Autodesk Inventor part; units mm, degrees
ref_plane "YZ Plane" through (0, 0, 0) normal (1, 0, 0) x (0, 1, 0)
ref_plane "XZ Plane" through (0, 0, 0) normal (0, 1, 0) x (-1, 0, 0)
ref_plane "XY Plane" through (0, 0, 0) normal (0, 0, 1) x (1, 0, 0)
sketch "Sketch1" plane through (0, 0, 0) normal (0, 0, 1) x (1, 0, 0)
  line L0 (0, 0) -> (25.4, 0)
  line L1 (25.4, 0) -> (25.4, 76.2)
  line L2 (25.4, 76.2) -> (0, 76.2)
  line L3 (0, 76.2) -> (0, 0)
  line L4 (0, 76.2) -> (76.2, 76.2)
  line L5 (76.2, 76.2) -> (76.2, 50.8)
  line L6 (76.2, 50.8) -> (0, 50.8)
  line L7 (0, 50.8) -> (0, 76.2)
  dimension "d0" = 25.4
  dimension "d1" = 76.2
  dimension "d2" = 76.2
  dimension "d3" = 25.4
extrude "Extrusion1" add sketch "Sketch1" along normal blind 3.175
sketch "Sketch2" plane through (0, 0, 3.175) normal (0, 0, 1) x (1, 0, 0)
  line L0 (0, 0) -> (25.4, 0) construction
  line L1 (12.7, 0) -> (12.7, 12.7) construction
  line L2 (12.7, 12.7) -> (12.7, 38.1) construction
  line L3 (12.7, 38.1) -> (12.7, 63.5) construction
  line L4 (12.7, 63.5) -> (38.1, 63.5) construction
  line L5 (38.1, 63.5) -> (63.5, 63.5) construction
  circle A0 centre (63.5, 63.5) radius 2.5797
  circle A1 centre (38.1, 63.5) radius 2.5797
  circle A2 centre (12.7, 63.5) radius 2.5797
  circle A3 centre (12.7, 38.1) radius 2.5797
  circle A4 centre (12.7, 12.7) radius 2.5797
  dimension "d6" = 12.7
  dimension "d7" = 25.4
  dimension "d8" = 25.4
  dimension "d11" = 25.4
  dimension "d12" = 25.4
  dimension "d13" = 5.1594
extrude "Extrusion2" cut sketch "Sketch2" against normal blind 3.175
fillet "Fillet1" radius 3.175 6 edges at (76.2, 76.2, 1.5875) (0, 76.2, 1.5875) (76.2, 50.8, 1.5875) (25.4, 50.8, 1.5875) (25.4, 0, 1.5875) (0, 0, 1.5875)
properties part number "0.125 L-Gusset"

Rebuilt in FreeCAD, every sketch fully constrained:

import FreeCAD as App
import Part
import Sketcher
Q = App.Units.Quantity


def edges_at(feature, points):
    """Names of the edges that pass closest to the given points."""
    edges = feature.Shape.Edges
    near = lambda p: min(range(len(edges)), key=lambda i: edges[i].distToShape(Part.Vertex(*p))[0])
    return sorted({f"Edge{near(p) + 1}" for p in points})


def add_polygon(sketch, points):
    """Adds a closed chain of lines whose ends are joined by coincident constraints."""
    first, n = sketch.GeometryCount, len(points)
    for a, b in zip(points, points[1:] + points[:1]):
        sketch.addGeometry(Part.LineSegment(App.Vector(*a, 0), App.Vector(*b, 0)), False)
    for i in range(n):
        sketch.addConstraint(Sketcher.Constraint("Coincident", first + i, 2, first + (i + 1) % n, 1))

doc = App.newDocument("Part")
body = doc.addObject("PartDesign::Body", "Body")

sketch1 = doc.addObject("Sketcher::SketchObject", "Sketch")
body.addObject(sketch1)
sketch1.AttachmentSupport = (doc.XY_Plane, [""])
sketch1.MapMode = "FlatFace"
add_polygon(sketch1, [(0, 0), (25, 0), (25, 51), (76, 51), (76, 76), (0, 76)])
sketch1.addConstraint([
    Sketcher.Constraint("Horizontal", 0),
    Sketcher.Constraint("Vertical", 1),
    Sketcher.Constraint("Horizontal", 2),
    Sketcher.Constraint("Vertical", 3),
    Sketcher.Constraint("Horizontal", 4),
    Sketcher.Constraint("Vertical", 5),
    Sketcher.Constraint("Coincident", 5, 2, -1, 1),
    Sketcher.Constraint("Equal", 2, 1),
    Sketcher.Constraint("Equal", 0, 3),
    Sketcher.Constraint("DistanceX", 0, 1, 0, 2, Q("1 in")),
    Sketcher.Constraint("DistanceX", 4, 2, 4, 1, Q("3 in")),
])
pad1 = doc.addObject("PartDesign::Pad", "Pad")
body.addObject(pad1)
pad1.Profile = sketch1
pad1.Length = Q("0.125 in")

sketch2 = doc.addObject("Sketcher::SketchObject", "Sketch001")
body.addObject(sketch2)
sketch2.AttachmentSupport = (doc.XY_Plane, [""])
sketch2.MapMode = "FlatFace"
sketch2.AttachmentOffset = App.Placement(App.Vector(0, 0, 0.125 * 25.4), App.Rotation())
sketch2.addGeometry([
    Part.Circle(App.Vector(63.5, 63.5, 0), App.Vector(0, 0, 1), 2.6),
    Part.Circle(App.Vector(38.1, 63.5, 0), App.Vector(0, 0, 1), 2.6),
    Part.Circle(App.Vector(12.7, 63.5, 0), App.Vector(0, 0, 1), 2.6),
    Part.Circle(App.Vector(12.7, 38.1, 0), App.Vector(0, 0, 1), 2.6),
    Part.Circle(App.Vector(12.7, 12.7, 0), App.Vector(0, 0, 1), 2.6),
], False)
sketch2.addConstraint([
    Sketcher.Constraint("Equal", 0, 1),
    Sketcher.Constraint("Equal", 1, 2),
    Sketcher.Constraint("Equal", 2, 3),
    Sketcher.Constraint("Equal", 3, 4),
    Sketcher.Constraint("Horizontal", 0, 3, 1, 3),
    Sketcher.Constraint("Horizontal", 1, 3, 2, 3),
    Sketcher.Constraint("Vertical", 2, 3, 3, 3),
    Sketcher.Constraint("Vertical", 3, 3, 4, 3),
    Sketcher.Constraint("Diameter", 0, Q("0.203126 in")),
    Sketcher.Constraint("DistanceX", 1, 3, 0, 3, Q("1 in")),
    Sketcher.Constraint("DistanceX", 2, 3, 1, 3, Q("1 in")),
    Sketcher.Constraint("DistanceY", 3, 3, 2, 3, Q("1 in")),
    Sketcher.Constraint("DistanceY", 4, 3, 3, 3, Q("1 in")),
    Sketcher.Constraint("DistanceX", -1, 1, 2, 3, Q("0.5 in")),
    Sketcher.Constraint("DistanceY", -1, 1, 4, 3, Q("0.5 in")),
])
pocket1 = doc.addObject("PartDesign::Pocket", "Pocket")
body.addObject(pocket1)
pocket1.Profile = sketch2
pocket1.Length = Q("0.125 in")
doc.recompute()

fillet = doc.addObject("PartDesign::Fillet", "Fillet")
body.addObject(fillet)
fillet.Base = (pocket1, edges_at(pocket1, [
    (76.2, 76.2, 1.587),
    (0, 76.2, 1.587),
    (76.2, 50.8, 1.587),
    (25.4, 50.8, 1.587),
    (25.4, 0, 1.587),
    (0, 0, 1.587),
]))
fillet.Radius = Q("0.125 in")

doc.recompute()
